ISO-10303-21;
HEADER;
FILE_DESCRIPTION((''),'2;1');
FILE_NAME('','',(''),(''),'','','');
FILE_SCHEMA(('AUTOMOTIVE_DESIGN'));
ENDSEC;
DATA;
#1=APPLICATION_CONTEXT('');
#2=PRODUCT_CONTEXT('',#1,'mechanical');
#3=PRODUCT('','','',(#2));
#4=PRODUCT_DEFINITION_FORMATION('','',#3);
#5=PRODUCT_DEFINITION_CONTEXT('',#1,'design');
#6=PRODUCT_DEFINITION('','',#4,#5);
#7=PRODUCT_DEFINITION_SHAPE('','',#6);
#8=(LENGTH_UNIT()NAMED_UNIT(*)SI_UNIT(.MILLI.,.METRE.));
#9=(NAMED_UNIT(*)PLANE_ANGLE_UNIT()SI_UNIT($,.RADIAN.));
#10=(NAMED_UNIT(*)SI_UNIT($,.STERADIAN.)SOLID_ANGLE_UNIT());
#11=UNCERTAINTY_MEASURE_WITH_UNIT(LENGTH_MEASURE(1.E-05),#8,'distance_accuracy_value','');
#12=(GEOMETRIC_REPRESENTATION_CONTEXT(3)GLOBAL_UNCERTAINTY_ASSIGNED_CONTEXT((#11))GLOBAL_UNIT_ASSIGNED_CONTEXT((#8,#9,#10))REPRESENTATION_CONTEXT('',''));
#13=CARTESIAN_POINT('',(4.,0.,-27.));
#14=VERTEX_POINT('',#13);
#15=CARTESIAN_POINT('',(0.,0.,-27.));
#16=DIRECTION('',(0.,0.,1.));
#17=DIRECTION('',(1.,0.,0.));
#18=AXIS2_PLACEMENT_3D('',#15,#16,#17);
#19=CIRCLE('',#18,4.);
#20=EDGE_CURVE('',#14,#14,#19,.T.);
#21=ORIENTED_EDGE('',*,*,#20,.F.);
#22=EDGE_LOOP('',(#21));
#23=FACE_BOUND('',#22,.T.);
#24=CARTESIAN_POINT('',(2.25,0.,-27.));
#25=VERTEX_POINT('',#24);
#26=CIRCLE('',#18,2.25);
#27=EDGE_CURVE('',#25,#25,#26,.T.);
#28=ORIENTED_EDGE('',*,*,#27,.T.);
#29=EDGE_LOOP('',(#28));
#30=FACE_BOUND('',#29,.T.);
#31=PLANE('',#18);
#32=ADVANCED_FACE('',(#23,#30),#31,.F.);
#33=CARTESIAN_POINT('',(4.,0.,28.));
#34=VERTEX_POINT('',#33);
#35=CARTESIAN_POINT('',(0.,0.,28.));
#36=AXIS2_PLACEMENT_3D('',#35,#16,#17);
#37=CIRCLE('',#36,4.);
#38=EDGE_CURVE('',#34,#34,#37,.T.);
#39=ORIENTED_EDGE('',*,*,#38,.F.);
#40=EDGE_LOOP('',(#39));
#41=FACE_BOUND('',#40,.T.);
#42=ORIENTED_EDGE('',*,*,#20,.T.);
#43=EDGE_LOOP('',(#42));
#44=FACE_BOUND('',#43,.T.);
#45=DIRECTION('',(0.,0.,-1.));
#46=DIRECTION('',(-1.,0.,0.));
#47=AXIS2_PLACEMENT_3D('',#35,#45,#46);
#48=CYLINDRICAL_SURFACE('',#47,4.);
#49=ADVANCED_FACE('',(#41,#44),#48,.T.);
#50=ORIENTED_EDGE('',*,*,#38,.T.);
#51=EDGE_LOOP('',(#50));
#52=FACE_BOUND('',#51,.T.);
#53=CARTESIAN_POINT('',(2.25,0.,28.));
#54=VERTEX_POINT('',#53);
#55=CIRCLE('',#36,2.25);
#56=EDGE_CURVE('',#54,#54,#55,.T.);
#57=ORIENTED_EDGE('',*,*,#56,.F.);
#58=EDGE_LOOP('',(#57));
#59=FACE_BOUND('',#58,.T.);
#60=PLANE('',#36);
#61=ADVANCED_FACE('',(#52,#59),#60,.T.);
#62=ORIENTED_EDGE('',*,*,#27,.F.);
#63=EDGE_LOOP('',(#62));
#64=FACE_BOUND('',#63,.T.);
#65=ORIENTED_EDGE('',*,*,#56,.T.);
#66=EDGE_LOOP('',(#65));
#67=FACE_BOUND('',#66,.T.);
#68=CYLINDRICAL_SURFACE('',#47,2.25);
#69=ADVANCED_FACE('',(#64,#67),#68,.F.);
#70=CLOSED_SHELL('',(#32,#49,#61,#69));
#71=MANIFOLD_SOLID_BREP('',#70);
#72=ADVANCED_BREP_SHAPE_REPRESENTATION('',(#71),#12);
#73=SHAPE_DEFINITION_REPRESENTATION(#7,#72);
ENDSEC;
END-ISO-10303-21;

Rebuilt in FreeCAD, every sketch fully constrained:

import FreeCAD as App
import Part
import Sketcher

V = App.Vector
Q = App.Units.Quantity

doc = App.newDocument("Part")
params = doc.addObject("Spreadsheet::Sheet", "Params")
for row, (alias, value) in enumerate([
    ("sketch1_diameter", "8 mm"),
    ("sketch1_diameter2", "4.5 mm"),
    ("pad1_length", "55 mm"),
], start=1):
    params.set(f"A{row}", alias)
    params.set(f"B{row}", "=" + value)
    params.setAlias(f"B{row}", alias)

body = doc.addObject("PartDesign::Body", "Body")

# Sketch on XY plane
sketch1 = doc.addObject("Sketcher::SketchObject", "Sketch")
body.addObject(sketch1)
sketch1.AttachmentSupport = (doc.XY_Plane, [""])
sketch1.MapMode = "FlatFace"
sketch1.AttachmentOffset = App.Placement(V(0, 0, -27), App.Rotation())
sketch1.addGeometry(Part.Circle(V(0, 0, 0), V(0, 0, 1), 4), False)
sketch1.addGeometry(Part.Circle(V(0, 0, 0), V(0, 0, 1), 2.2), False)
sketch1.addConstraint(Sketcher.Constraint("Coincident", 0, 3, -1, 1))
sketch1.addConstraint(Sketcher.Constraint("Coincident", 1, 3, -1, 1))
sketch1.addConstraint(Sketcher.Constraint("Diameter", 0, Q("8 mm")))
sketch1.addConstraint(Sketcher.Constraint("Diameter", 1, Q("4.5 mm")))
sketch1.setExpression("Constraints[2]", "Params.sketch1_diameter")
sketch1.setExpression("Constraints[3]", "Params.sketch1_diameter2")
pad1 = doc.addObject("PartDesign::Pad", "Pad")
body.addObject(pad1)
pad1.Profile = sketch1
pad1.setExpression("Length", "Params.pad1_length")

doc.recompute()
